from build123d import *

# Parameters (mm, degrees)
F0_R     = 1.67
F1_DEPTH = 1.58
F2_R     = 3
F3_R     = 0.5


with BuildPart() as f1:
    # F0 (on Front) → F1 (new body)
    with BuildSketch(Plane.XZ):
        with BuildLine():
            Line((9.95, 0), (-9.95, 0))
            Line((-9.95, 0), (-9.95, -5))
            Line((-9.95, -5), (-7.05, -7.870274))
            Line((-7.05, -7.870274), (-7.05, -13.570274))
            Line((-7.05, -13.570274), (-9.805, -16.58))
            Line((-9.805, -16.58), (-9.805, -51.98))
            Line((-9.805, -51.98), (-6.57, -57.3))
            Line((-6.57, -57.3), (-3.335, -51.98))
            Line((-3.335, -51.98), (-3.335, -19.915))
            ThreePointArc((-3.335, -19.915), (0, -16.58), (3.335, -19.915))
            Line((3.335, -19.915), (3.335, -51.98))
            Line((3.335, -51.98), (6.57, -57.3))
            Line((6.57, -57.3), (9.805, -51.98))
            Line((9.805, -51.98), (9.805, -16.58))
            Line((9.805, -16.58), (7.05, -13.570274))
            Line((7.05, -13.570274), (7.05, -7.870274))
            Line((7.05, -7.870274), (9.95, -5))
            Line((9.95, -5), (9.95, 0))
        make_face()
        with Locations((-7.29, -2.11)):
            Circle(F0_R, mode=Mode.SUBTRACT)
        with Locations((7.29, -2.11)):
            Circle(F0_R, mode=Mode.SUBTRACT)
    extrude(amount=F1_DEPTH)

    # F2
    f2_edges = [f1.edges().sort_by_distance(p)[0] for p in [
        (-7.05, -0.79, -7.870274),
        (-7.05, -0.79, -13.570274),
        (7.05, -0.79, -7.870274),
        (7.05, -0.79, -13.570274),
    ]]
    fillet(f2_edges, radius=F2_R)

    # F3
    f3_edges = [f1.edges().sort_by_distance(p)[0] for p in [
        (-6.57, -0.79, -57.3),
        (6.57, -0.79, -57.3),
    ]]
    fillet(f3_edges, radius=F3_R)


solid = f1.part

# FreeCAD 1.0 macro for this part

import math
import FreeCAD as App
import Part
import Sketcher
from FreeCAD import Vector
Q = App.Units.Quantity


def edges_at(feature, points):
    """Names of the edges that pass closest to the given points."""
    edges = feature.Shape.Edges
    near = lambda p: min(range(len(edges)), key=lambda i: edges[i].distToShape(Part.Vertex(*p))[0])
    return sorted({f"Edge{near(p) + 1}" for p in points})

doc = App.newDocument("Part")
body = doc.addObject("PartDesign::Body", "Body")

# Sketch on XZ plane
sketch1 = doc.addObject("Sketcher::SketchObject", "Sketch")
body.addObject(sketch1)
sketch1.AttachmentSupport = (doc.XZ_Plane, [""])
sketch1.MapMode = "FlatFace"
sketch1.addGeometry(Part.LineSegment(Vector(9.9, 0, 0), Vector(-9.9, 0, 0)), False)
sketch1.addGeometry(Part.LineSegment(Vector(-9.9, 0, 0), Vector(-9.9, -5, 0)), False)
sketch1.addGeometry(Part.LineSegment(Vector(-9.9, -5, 0), Vector(-7, -7.9, 0)), False)
sketch1.addGeometry(Part.LineSegment(Vector(-7, -7.9, 0), Vector(-7, -13.6, 0)), False)
sketch1.addGeometry(Part.LineSegment(Vector(-7, -13.6, 0), Vector(-9.8, -16.6, 0)), False)
sketch1.addGeometry(Part.LineSegment(Vector(-9.8, -16.6, 0), Vector(-9.8, -52, 0)), False)
sketch1.addGeometry(Part.LineSegment(Vector(-9.8, -52, 0), Vector(-6.6, -57.3, 0)), False)
sketch1.addGeometry(Part.LineSegment(Vector(-6.6, -57.3, 0), Vector(-3.3, -52, 0)), False)
sketch1.addGeometry(Part.LineSegment(Vector(-3.3, -52, 0), Vector(-3.3, -19.9, 0)), False)
sketch1.addGeometry(Part.ArcOfCircle(Part.Circle(Vector(0, -19.9, 0), Vector(0, 0, 1), 3.3), math.radians(0), math.radians(180)), False)
sketch1.addGeometry(Part.LineSegment(Vector(3.3, -19.9, 0), Vector(3.3, -52, 0)), False)
sketch1.addGeometry(Part.LineSegment(Vector(3.3, -52, 0), Vector(6.6, -57.3, 0)), False)
sketch1.addGeometry(Part.LineSegment(Vector(6.6, -57.3, 0), Vector(9.8, -52, 0)), False)
sketch1.addGeometry(Part.LineSegment(Vector(9.8, -52, 0), Vector(9.8, -16.6, 0)), False)
sketch1.addGeometry(Part.LineSegment(Vector(9.8, -16.6, 0), Vector(7, -13.6, 0)), False)
sketch1.addGeometry(Part.LineSegment(Vector(7, -13.6, 0), Vector(7, -7.9, 0)), False)
sketch1.addGeometry(Part.LineSegment(Vector(7, -7.9, 0), Vector(9.9, -5, 0)), False)
sketch1.addGeometry(Part.LineSegment(Vector(9.9, -5, 0), Vector(9.9, 0, 0)), False)
sketch1.addGeometry(Part.Circle(Vector(-7.3, -2.1, 0), Vector(0, 0, 1), 1.7), False)
sketch1.addGeometry(Part.Circle(Vector(7.3, -2.1, 0), Vector(0, 0, 1), 1.7), False)
sketch1.addConstraint(Sketcher.Constraint("Coincident", 0, 2, 1, 1))
sketch1.addConstraint(Sketcher.Constraint("Coincident", 1, 2, 2, 1))
sketch1.addConstraint(Sketcher.Constraint("Coincident", 2, 2, 3, 1))
sketch1.addConstraint(Sketcher.Constraint("Coincident", 3, 2, 4, 1))
sketch1.addConstraint(Sketcher.Constraint("Coincident", 4, 2, 5, 1))
sketch1.addConstraint(Sketcher.Constraint("Coincident", 5, 2, 6, 1))
sketch1.addConstraint(Sketcher.Constraint("Coincident", 6, 2, 7, 1))
sketch1.addConstraint(Sketcher.Constraint("Coincident", 7, 2, 8, 1))
sketch1.addConstraint(Sketcher.Constraint("Tangent", 8, 2, 9, 2))
sketch1.addConstraint(Sketcher.Constraint("Tangent", 9, 1, 10, 1))
sketch1.addConstraint(Sketcher.Constraint("Coincident", 10, 2, 11, 1))
sketch1.addConstraint(Sketcher.Constraint("Coincident", 11, 2, 12, 1))
sketch1.addConstraint(Sketcher.Constraint("Coincident", 12, 2, 13, 1))
sketch1.addConstraint(Sketcher.Constraint("Coincident", 13, 2, 14, 1))
sketch1.addConstraint(Sketcher.Constraint("Coincident", 14, 2, 15, 1))
sketch1.addConstraint(Sketcher.Constraint("Coincident", 15, 2, 16, 1))
sketch1.addConstraint(Sketcher.Constraint("Coincident", 16, 2, 17, 1))
sketch1.addConstraint(Sketcher.Constraint("Coincident", 17, 2, 0, 1))
sketch1.addConstraint(Sketcher.Constraint("Horizontal", 0))
sketch1.addConstraint(Sketcher.Constraint("Vertical", 1))
sketch1.addConstraint(Sketcher.Constraint("Vertical", 3))
sketch1.addConstraint(Sketcher.Constraint("Vertical", 5))
sketch1.addConstraint(Sketcher.Constraint("Vertical", 8))
sketch1.addConstraint(Sketcher.Constraint("Vertical", 10))
sketch1.addConstraint(Sketcher.Constraint("Vertical", 13))
sketch1.addConstraint(Sketcher.Constraint("Vertical", 15))
sketch1.addConstraint(Sketcher.Constraint("Vertical", 17))
sketch1.addConstraint(Sketcher.Constraint("Equal", 18, 19))
sketch1.addConstraint(Sketcher.Constraint("Symmetric", 0, 2, 17, 2, -1, 1))
sketch1.addConstraint(Sketcher.Constraint("Symmetric", 18, 3, 19, 3, -2))
sketch1.addConstraint(Sketcher.Constraint("Symmetric", 7, 2, 10, 2, -2))
sketch1.addConstraint(Sketcher.Constraint("Symmetric", 6, 2, 11, 2, -2))
sketch1.addConstraint(Sketcher.Constraint("Symmetric", 5, 2, 12, 2, -2))
sketch1.addConstraint(Sketcher.Constraint("Symmetric", 3, 2, 14, 2, -2))
sketch1.addConstraint(Sketcher.Constraint("Parallel", 6, 11))
sketch1.addConstraint(Sketcher.Constraint("Horizontal", 5, 2, 7, 2))
sketch1.addConstraint(Sketcher.Constraint("Horizontal", 4, 2, 13, 2))
sketch1.addConstraint(Sketcher.Constraint("Horizontal", 2, 2, 15, 2))
sketch1.addConstraint(Sketcher.Constraint("Horizontal", 1, 2, 16, 2))
sketch1.addConstraint(Sketcher.Constraint("Equal", 2, 4))
sketch1.addConstraint(Sketcher.Constraint("Diameter", 18, Q("3.34 mm")))
sketch1.addConstraint(Sketcher.Constraint("DistanceY", 1, 2, 1, 1, Q("5 mm")))
sketch1.addConstraint(Sketcher.Constraint("DistanceX", 0, 2, 0, 1, Q("19.9 mm")))
sketch1.addConstraint(Sketcher.Constraint("DistanceY", 3, 2, 3, 1, Q("5.7 mm")))
sketch1.addConstraint(Sketcher.Constraint("DistanceY", 5, 2, 5, 1, Q("35.4 mm")))
sketch1.addConstraint(Sketcher.Constraint("Radius", 9, Q("3.335 mm")))
sketch1.addConstraint(Sketcher.Constraint("DistanceY", 6, 2, -1, 1, Q("57.3 mm")))
sketch1.addConstraint(Sketcher.Constraint("DistanceX", 1, 2, 2, 2, Q("2.9 mm")))
sketch1.addConstraint(Sketcher.Constraint("DistanceY", 8, 1, 8, 2, Q("32.065 mm")))
sketch1.addConstraint(Sketcher.Constraint("DistanceX", 18, 3, -1, 1, Q("7.29 mm")))
sketch1.addConstraint(Sketcher.Constraint("DistanceY", 18, 3, -1, 1, Q("2.11 mm")))
sketch1.addConstraint(Sketcher.Constraint("DistanceY", 4, 2, -1, 1, Q("16.58 mm")))
sketch1.addConstraint(Sketcher.Constraint("DistanceX", 6, 2, -1, 1, Q("6.57 mm")))
pad1 = doc.addObject("PartDesign::Pad", "Pad")
body.addObject(pad1)
pad1.Profile = sketch1
pad1.Length = 1.58
doc.recompute()

fillet = doc.addObject("PartDesign::Fillet", "Fillet")
body.addObject(fillet)
fillet.Base = (pad1, edges_at(pad1, [
    (-7.05, -0.79, -7.87),
    (-7.05, -0.79, -13.57),
    (7.05, -0.79, -7.87),
    (7.05, -0.79, -13.57),
]))
fillet.Radius = 3
doc.recompute()

fillet2 = doc.addObject("PartDesign::Fillet", "Fillet001")
body.addObject(fillet2)
fillet2.Base = (fillet, edges_at(fillet, [(-6.57, -0.79, -57.3), (6.57, -0.79, -57.3)]))
fillet2.Radius = 0.5

doc.recompute()
